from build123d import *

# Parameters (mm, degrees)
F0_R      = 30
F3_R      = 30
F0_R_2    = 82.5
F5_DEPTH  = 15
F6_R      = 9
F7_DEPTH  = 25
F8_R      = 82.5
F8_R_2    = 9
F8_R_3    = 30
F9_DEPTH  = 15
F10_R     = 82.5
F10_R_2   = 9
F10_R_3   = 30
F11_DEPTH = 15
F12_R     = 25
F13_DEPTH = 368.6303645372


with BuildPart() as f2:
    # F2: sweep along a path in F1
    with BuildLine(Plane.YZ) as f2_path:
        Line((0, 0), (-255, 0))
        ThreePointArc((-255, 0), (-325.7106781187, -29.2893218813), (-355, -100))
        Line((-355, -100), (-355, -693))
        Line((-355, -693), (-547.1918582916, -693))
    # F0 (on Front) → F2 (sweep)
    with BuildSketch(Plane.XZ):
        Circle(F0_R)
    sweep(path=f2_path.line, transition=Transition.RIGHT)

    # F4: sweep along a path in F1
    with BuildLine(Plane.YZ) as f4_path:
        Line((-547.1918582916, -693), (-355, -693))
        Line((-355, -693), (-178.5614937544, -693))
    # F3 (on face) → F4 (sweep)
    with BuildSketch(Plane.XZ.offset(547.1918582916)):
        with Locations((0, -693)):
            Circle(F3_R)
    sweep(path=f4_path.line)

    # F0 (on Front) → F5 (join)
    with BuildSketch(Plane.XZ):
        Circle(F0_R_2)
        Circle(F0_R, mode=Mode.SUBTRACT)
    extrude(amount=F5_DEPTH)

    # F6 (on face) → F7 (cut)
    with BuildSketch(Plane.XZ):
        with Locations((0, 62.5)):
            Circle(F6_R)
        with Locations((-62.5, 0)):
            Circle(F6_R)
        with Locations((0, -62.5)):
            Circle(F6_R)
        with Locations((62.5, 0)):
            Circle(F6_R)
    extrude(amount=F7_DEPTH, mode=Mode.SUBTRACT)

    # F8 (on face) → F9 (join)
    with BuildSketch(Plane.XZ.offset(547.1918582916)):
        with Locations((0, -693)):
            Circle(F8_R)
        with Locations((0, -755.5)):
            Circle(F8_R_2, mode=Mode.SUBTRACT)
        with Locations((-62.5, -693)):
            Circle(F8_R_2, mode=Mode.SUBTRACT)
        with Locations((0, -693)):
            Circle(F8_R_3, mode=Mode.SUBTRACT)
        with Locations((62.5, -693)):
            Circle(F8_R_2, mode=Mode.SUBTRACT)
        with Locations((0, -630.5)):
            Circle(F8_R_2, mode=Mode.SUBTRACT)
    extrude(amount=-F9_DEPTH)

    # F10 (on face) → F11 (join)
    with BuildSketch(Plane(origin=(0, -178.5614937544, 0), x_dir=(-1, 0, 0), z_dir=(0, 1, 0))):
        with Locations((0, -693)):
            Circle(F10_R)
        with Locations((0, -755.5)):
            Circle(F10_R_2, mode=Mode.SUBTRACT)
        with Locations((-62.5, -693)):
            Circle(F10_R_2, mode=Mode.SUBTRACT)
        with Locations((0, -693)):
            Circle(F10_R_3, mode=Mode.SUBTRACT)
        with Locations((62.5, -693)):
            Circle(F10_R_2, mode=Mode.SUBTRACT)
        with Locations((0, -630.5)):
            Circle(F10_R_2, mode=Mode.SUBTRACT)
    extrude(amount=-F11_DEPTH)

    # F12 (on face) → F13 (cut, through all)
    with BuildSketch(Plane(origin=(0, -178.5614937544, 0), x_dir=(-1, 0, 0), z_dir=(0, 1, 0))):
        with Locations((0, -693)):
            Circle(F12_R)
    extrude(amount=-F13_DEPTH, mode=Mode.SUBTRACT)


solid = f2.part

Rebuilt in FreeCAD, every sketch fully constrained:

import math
import FreeCAD as App
import Part
import Sketcher

V = App.Vector

doc = App.newDocument("Part")
params = doc.addObject("Spreadsheet::Sheet", "Params")
for row, (alias, value) in enumerate([
    ("sketch1_diameter", "60 mm"),
    ("sketch2_radius", "100 mm"),
    ("sketch2_width", "255 mm"),
    ("sketch2_height", "593 mm"),
    ("sketch3_diameter", "60 mm"),
    ("sketch5_diameter", "165 mm"),
    ("sketch5_diameter2", "60 mm"),
    ("pad1_length", "15 mm"),
    ("sketch6_diameter", "18 mm"),
    ("pocket1_length", "25 mm"),
    ("sketch7_diameter", "165 mm"),
    ("sketch7_diameter2", "18 mm"),
    ("sketch7_diameter3", "60 mm"),
    ("pad2_length", "15 mm"),
    ("sketch8_diameter", "165 mm"),
    ("sketch8_diameter2", "18 mm"),
    ("sketch8_diameter3", "60 mm"),
    ("pad3_length", "15 mm"),
    ("sketch9_diameter", "50 mm"),
], start=1):
    params.set(f"A{row}", alias)
    params.set(f"B{row}", "=" + value)
    params.setAlias(f"B{row}", alias)

body = doc.addObject("PartDesign::Body", "Body")

# Sketch on XZ plane
sketch1 = body.newObject("Sketcher::SketchObject", "Sketch")
sketch1.AttachmentSupport = (doc.getObject("XZ_Plane"), [""])
sketch1.MapMode = "FlatFace"
sketch1.addGeometry(Part.Circle(V(0, 0, 0), V(0, 0, 1), 30), False)
sketch1.addConstraint([
    Sketcher.Constraint("Coincident", 0, 3, -1, 1),
    Sketcher.Constraint("Diameter", 0, 60.0),
])
sketch1.setExpression("Constraints[1]", "Params.sketch1_diameter")

# Sketch on YZ plane
sketch2 = body.newObject("Sketcher::SketchObject", "Sketch001")
sketch2.AttachmentSupport = (doc.getObject("YZ_Plane"), [""])
sketch2.MapMode = "FlatFace"
sketch2.addGeometry([
    Part.LineSegment(V(0, 0, 0), V(-255, 0, 0)),
    Part.ArcOfCircle(Part.Circle(V(-255, -100, 0), V(0, 0, 1), 100), math.radians(90), math.radians(180)),
    Part.LineSegment(V(-355, -100, 0), V(-355, -693, 0)),
    Part.LineSegment(V(-355, -693, 0), V(-547, -693, 0)),
], False)
sketch2.addConstraint([
    Sketcher.Constraint("Tangent", 0, 2, 1, 1),
    Sketcher.Constraint("Tangent", 1, 2, 2, 1),
    Sketcher.Constraint("Coincident", 2, 2, 3, 1),
    Sketcher.Constraint("Horizontal", 0),
    Sketcher.Constraint("Vertical", 2),
    Sketcher.Constraint("Horizontal", 3),
    Sketcher.Constraint("Coincident", 0, 1, -1, 1),
    Sketcher.Constraint("Radius", 1, 100.0),
    Sketcher.Constraint("DistanceX", 0, 2, 0, 1, 255.0),
    Sketcher.Constraint("DistanceY", 2, 2, 2, 1, 593.0),
    Sketcher.Constraint("DistanceX", 3, 2, 3, 1, 192.191858),
])
sketch2.setExpression("Constraints[7]", "Params.sketch2_radius")
sketch2.setExpression("Constraints[8]", "Params.sketch2_width")
sketch2.setExpression("Constraints[9]", "Params.sketch2_height")
doc.recompute()

additivepipe = body.newObject("PartDesign::AdditivePipe", "AdditivePipe")
additivepipe.Profile = sketch1
additivepipe.Spine = (sketch2, ["Edge1", "Edge2", "Edge3", "Edge4"])
additivepipe.Transition = "Right corner"

# Sketch on XZ plane
sketch3 = body.newObject("Sketcher::SketchObject", "Sketch002")
sketch3.AttachmentSupport = (doc.getObject("XZ_Plane"), [""])
sketch3.MapMode = "FlatFace"
sketch3.AttachmentOffset = App.Placement(V(0, 0, 547.191858), App.Rotation())
sketch3.addGeometry(Part.Circle(V(0, -693, 0), V(0, 0, 1), 30), False)
sketch3.addConstraint([
    Sketcher.Constraint("PointOnObject", 0, 3, -2),
    Sketcher.Constraint("Diameter", 0, 60.0),
    Sketcher.Constraint("DistanceY", 0, 3, -1, 1, 693.0),
])
sketch3.setExpression("Constraints[1]", "Params.sketch3_diameter")

# Sketch on XY plane
sketch4 = body.newObject("Sketcher::SketchObject", "Sketch003")
sketch4.AttachmentSupport = (doc.getObject("XY_Plane"), [""])
sketch4.MapMode = "FlatFace"
sketch4.AttachmentOffset = App.Placement(V(0, 0, -693), App.Rotation())
sketch4.addGeometry(Part.LineSegment(V(0, -547, 0), V(0, -179, 0)), False)
sketch4.addConstraint([
    Sketcher.Constraint("Vertical", 0),
    Sketcher.Constraint("PointOnObject", 0, 1, -2),
    Sketcher.Constraint("DistanceY", 0, 1, 0, 2, 368.630365),
    Sketcher.Constraint("DistanceY", 0, 1, -1, 1, 547.191858),
])
doc.recompute()

additivepipe2 = body.newObject("PartDesign::AdditivePipe", "AdditivePipe001")
additivepipe2.Profile = sketch3
additivepipe2.Spine = (sketch4, ["Edge1"])

# Sketch on XZ plane
sketch5 = body.newObject("Sketcher::SketchObject", "Sketch004")
sketch5.AttachmentSupport = (doc.getObject("XZ_Plane"), [""])
sketch5.MapMode = "FlatFace"
sketch5.addGeometry([
    Part.Circle(V(0, 0, 0), V(0, 0, 1), 82),
    Part.Circle(V(0, 0, 0), V(0, 0, 1), 30),
], False)
sketch5.addConstraint([
    Sketcher.Constraint("Coincident", 0, 3, -1, 1),
    Sketcher.Constraint("Coincident", 1, 3, -1, 1),
    Sketcher.Constraint("Diameter", 0, 165.0),
    Sketcher.Constraint("Diameter", 1, 60.0),
])
sketch5.setExpression("Constraints[2]", "Params.sketch5_diameter")
sketch5.setExpression("Constraints[3]", "Params.sketch5_diameter2")
pad1 = body.newObject("PartDesign::Pad", "Pad")
pad1.Profile = sketch5
pad1.setExpression("Length", "Params.pad1_length")

# Sketch on XZ plane
sketch6 = body.newObject("Sketcher::SketchObject", "Sketch005")
sketch6.AttachmentSupport = (doc.getObject("XZ_Plane"), [""])
sketch6.MapMode = "FlatFace"
sketch6.addGeometry([
    Part.Circle(V(0, 62, 0), V(0, 0, 1), 9),
    Part.Circle(V(-62, 0, 0), V(0, 0, 1), 9),
    Part.Circle(V(0, -62, 0), V(0, 0, 1), 9),
    Part.Circle(V(62, 0, 0), V(0, 0, 1), 9),
], False)
sketch6.addConstraint([
    Sketcher.Constraint("Equal", 0, 1),
    Sketcher.Constraint("Equal", 1, 2),
    Sketcher.Constraint("Equal", 2, 3),
    Sketcher.Constraint("Symmetric", 0, 3, 2, 3, -1, 1),
    Sketcher.Constraint("Symmetric", 1, 3, 3, 3, -1, 1),
    Sketcher.Constraint("PointOnObject", 0, 3, -2),
    Sketcher.Constraint("PointOnObject", 1, 3, -1),
    Sketcher.Constraint("Diameter", 0, 18.0),
    Sketcher.Constraint("DistanceY", 2, 3, 0, 3, 125.0),
    Sketcher.Constraint("DistanceX", 1, 3, 3, 3, 125.0),
])
sketch6.setExpression("Constraints[7]", "Params.sketch6_diameter")
pocket1 = body.newObject("PartDesign::Pocket", "Pocket")
pocket1.Profile = sketch6
pocket1.setExpression("Length", "Params.pocket1_length")
pocket1.Reversed = True

# Sketch on XZ plane
sketch7 = body.newObject("Sketcher::SketchObject", "Sketch006")
sketch7.AttachmentSupport = (doc.getObject("XZ_Plane"), [""])
sketch7.MapMode = "FlatFace"
sketch7.AttachmentOffset = App.Placement(V(0, 0, 547.191858), App.Rotation())
sketch7.addGeometry([
    Part.Circle(V(0, -693, 0), V(0, 0, 1), 82),  # 0
    Part.Circle(V(0, -756, 0), V(0, 0, 1), 9),  # 1
    Part.Circle(V(-62, -693, 0), V(0, 0, 1), 9),  # 2
    Part.Circle(V(0, -693, 0), V(0, 0, 1), 30),  # 3
    Part.Circle(V(62, -693, 0), V(0, 0, 1), 9),  # 4
    Part.Circle(V(0, -630, 0), V(0, 0, 1), 9),  # 5
], False)
sketch7.addConstraint([
    Sketcher.Constraint("Coincident", 3, 3, 0, 3),
    Sketcher.Constraint("Equal", 1, 2),
    Sketcher.Constraint("Equal", 2, 4),
    Sketcher.Constraint("Equal", 4, 5),
    Sketcher.Constraint("Symmetric", 2, 3, 4, 3, -2),
    Sketcher.Constraint("PointOnObject", 0, 3, -2),
    Sketcher.Constraint("PointOnObject", 1, 3, -2),
    Sketcher.Constraint("PointOnObject", 5, 3, -2),
    Sketcher.Constraint("Horizontal", 0, 3, 2, 3),
    Sketcher.Constraint("Diameter", 0, 165.0),
    Sketcher.Constraint("Diameter", 1, 18.0),
    Sketcher.Constraint("Diameter", 3, 60.0),
    Sketcher.Constraint("DistanceY", 0, 3, -1, 1, 693.0),
    Sketcher.Constraint("DistanceX", 2, 3, 4, 3, 125.0),
    Sketcher.Constraint("DistanceY", 1, 3, 5, 3, 125.0),
    Sketcher.Constraint("DistanceY", 1, 3, -1, 1, 755.5),
])
sketch7.setExpression("Constraints[9]", "Params.sketch7_diameter")
sketch7.setExpression("Constraints[10]", "Params.sketch7_diameter2")
sketch7.setExpression("Constraints[11]", "Params.sketch7_diameter3")
pad2 = body.newObject("PartDesign::Pad", "Pad001")
pad2.Profile = sketch7
pad2.setExpression("Length", "Params.pad2_length")
pad2.Reversed = True

# Sketch on XZ plane
sketch8 = body.newObject("Sketcher::SketchObject", "Sketch007")
sketch8.AttachmentSupport = (doc.getObject("XZ_Plane"), [""])
sketch8.MapMode = "FlatFace"
sketch8.AttachmentOffset = App.Placement(V(0, 0, 178.561494), App.Rotation())
sketch8.addGeometry([
    Part.Circle(V(0, -693, 0), V(0, 0, 1), 82),  # 0
    Part.Circle(V(0, -756, 0), V(0, 0, 1), 9),  # 1
    Part.Circle(V(62, -693, 0), V(0, 0, 1), 9),  # 2
    Part.Circle(V(0, -693, 0), V(0, 0, 1), 30),  # 3
    Part.Circle(V(-62, -693, 0), V(0, 0, 1), 9),  # 4
    Part.Circle(V(0, -630, 0), V(0, 0, 1), 9),  # 5
], False)
sketch8.addConstraint([
    Sketcher.Constraint("Coincident", 3, 3, 0, 3),
    Sketcher.Constraint("Equal", 1, 2),
    Sketcher.Constraint("Equal", 2, 4),
    Sketcher.Constraint("Equal", 4, 5),
    Sketcher.Constraint("Symmetric", 2, 3, 4, 3, -2),
    Sketcher.Constraint("PointOnObject", 0, 3, -2),
    Sketcher.Constraint("PointOnObject", 1, 3, -2),
    Sketcher.Constraint("PointOnObject", 5, 3, -2),
    Sketcher.Constraint("Horizontal", 0, 3, 2, 3),
    Sketcher.Constraint("Diameter", 0, 165.0),
    Sketcher.Constraint("Diameter", 1, 18.0),
    Sketcher.Constraint("Diameter", 3, 60.0),
    Sketcher.Constraint("DistanceY", 0, 3, -1, 1, 693.0),
    Sketcher.Constraint("DistanceX", 4, 3, 2, 3, 125.0),
    Sketcher.Constraint("DistanceY", 1, 3, 5, 3, 125.0),
    Sketcher.Constraint("DistanceY", 1, 3, -1, 1, 755.5),
])
sketch8.setExpression("Constraints[9]", "Params.sketch8_diameter")
sketch8.setExpression("Constraints[10]", "Params.sketch8_diameter2")
sketch8.setExpression("Constraints[11]", "Params.sketch8_diameter3")
pad3 = body.newObject("PartDesign::Pad", "Pad002")
pad3.Profile = sketch8
pad3.setExpression("Length", "Params.pad3_length")

# Sketch on XZ plane
sketch9 = body.newObject("Sketcher::SketchObject", "Sketch008")
sketch9.AttachmentSupport = (doc.getObject("XZ_Plane"), [""])
sketch9.MapMode = "FlatFace"
sketch9.AttachmentOffset = App.Placement(V(0, 0, 178.561494), App.Rotation())
sketch9.addGeometry(Part.Circle(V(0, -693, 0), V(0, 0, 1), 25), False)
sketch9.addConstraint([
    Sketcher.Constraint("PointOnObject", 0, 3, -2),
    Sketcher.Constraint("Diameter", 0, 50.0),
    Sketcher.Constraint("DistanceY", 0, 3, -1, 1, 693.0),
])
sketch9.setExpression("Constraints[1]", "Params.sketch9_diameter")
pocket2 = body.newObject("PartDesign::Pocket", "Pocket001")
pocket2.Profile = sketch9
pocket2.Type = "ThroughAll"
pocket2.Reversed = True

doc.recompute()
